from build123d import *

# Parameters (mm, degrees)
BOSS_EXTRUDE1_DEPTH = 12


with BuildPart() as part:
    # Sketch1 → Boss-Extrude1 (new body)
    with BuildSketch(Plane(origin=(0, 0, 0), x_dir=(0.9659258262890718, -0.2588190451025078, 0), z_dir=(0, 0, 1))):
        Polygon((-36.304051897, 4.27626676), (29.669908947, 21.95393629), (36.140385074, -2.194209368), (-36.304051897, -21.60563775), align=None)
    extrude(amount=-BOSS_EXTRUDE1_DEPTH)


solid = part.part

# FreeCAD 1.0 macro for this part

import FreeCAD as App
import Part
import Sketcher

V = App.Vector
Q = App.Units.Quantity


def add_polygon(sketch, points):
    """Adds a closed chain of lines whose ends are joined by coincident constraints."""
    first, n = sketch.GeometryCount, len(points)
    for a, b in zip(points, points[1:] + points[:1]):
        sketch.addGeometry(Part.LineSegment(App.Vector(*a, 0), App.Vector(*b, 0)), False)
    for i in range(n):
        sketch.addConstraint(Sketcher.Constraint("Coincident", first + i, 2, first + (i + 1) % n, 1))

doc = App.newDocument("Part")
body = doc.addObject("PartDesign::Body", "Body")

# Sketch on XY plane
sketch1 = body.newObject("Sketcher::SketchObject", "Sketch")
sketch1.AttachmentSupport = (doc.getObject("XY_Plane"), [""])
sketch1.MapMode = "FlatFace"
add_polygon(sketch1, [(34, 14), (-34, 14), (-41, -11), (34, -11)])  # lines 0-3
sketch1.addConstraint([
    Sketcher.Constraint("Horizontal", 0),
    Sketcher.Constraint("Horizontal", 2),
    Sketcher.Constraint("Vertical", 3),
    Sketcher.Constraint("DistanceX", 2, 1, 2, 2, Q("75 mm")),
    Sketcher.Constraint("DistanceY", 3, 1, 3, 2, Q("25 mm")),
    Sketcher.Constraint("Angle", 1, Q("-105 deg")),
    Sketcher.Constraint("DistanceX", 1, 2, -1, 1, Q("40.658972 mm")),
    Sketcher.Constraint("DistanceY", -1, 1, 0, 2, Q("13.526737 mm")),
])
pad1 = body.newObject("PartDesign::Pad", "Pad")
pad1.Profile = sketch1
pad1.Length = 12
pad1.Reversed = True

doc.recompute()
